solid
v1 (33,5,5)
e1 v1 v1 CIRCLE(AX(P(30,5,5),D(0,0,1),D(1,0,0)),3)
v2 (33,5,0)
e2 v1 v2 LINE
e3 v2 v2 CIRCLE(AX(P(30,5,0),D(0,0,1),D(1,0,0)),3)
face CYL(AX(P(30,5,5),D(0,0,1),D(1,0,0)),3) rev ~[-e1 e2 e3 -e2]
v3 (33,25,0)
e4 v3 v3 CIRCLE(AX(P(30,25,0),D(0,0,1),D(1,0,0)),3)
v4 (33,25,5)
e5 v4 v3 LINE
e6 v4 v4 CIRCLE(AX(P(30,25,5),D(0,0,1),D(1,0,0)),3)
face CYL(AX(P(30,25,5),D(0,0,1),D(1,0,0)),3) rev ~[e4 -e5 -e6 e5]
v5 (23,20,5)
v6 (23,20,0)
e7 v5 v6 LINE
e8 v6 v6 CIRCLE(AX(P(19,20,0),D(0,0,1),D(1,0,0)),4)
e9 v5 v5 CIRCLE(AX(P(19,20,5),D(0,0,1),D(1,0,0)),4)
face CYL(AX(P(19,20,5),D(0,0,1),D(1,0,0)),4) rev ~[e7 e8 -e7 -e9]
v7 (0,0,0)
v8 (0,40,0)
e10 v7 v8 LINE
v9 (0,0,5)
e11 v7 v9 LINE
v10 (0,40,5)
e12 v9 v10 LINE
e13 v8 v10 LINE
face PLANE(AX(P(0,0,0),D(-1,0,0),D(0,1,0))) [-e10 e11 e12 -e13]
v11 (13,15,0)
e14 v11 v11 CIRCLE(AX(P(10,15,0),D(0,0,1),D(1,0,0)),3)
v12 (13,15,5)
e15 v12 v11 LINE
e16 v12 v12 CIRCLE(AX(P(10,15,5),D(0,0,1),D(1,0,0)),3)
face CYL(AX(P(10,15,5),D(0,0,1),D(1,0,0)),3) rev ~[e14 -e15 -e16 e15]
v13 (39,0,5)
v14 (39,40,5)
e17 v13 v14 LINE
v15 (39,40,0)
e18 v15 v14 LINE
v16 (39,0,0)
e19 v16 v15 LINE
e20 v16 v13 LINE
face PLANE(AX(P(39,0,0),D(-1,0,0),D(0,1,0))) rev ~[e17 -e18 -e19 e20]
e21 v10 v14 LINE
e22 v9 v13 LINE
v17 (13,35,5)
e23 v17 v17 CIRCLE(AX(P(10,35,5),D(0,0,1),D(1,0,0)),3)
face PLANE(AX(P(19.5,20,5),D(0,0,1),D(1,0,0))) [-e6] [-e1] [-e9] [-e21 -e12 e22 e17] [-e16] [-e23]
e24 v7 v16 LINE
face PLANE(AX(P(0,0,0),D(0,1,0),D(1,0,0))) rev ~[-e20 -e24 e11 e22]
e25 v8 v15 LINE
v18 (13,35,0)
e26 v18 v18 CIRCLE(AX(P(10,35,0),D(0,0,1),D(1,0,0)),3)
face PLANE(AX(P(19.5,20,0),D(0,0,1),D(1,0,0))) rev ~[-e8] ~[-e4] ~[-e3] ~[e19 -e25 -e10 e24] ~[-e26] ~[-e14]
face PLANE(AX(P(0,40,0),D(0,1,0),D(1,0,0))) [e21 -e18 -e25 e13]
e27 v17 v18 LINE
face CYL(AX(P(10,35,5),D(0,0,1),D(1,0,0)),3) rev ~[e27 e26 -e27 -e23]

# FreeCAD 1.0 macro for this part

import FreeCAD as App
import Part
import Sketcher

V = App.Vector

doc = App.newDocument("Part")
body = doc.addObject("PartDesign::Body", "Body")

# Sketch on XY plane
sketch1 = body.newObject("Sketcher::SketchObject", "Sketch")
sketch1.AttachmentSupport = (doc.getObject("XY_Plane"), [""])
sketch1.MapMode = "FlatFace"
sketch1.addGeometry([
    Part.LineSegment(V(0, 40, 0), V(0, 0, 0)),
    Part.LineSegment(V(0, 0, 0), V(39, 0, 0)),
    Part.LineSegment(V(39, 0, 0), V(39, 40, 0)),
    Part.LineSegment(V(39, 40, 0), V(0, 40, 0)),
], False)
sketch1.addConstraint([
    Sketcher.Constraint("Coincident", 0, 2, 1, 1),
    Sketcher.Constraint("Coincident", 1, 2, 2, 1),
    Sketcher.Constraint("Coincident", 2, 2, 3, 1),
    Sketcher.Constraint("Coincident", 3, 2, 0, 1),
    Sketcher.Constraint("Vertical", 0),
    Sketcher.Constraint("Horizontal", 1),
    Sketcher.Constraint("Vertical", 2),
    Sketcher.Constraint("Horizontal", 3),
    Sketcher.Constraint("Coincident", 0, 2, -1, 1),
    Sketcher.Constraint("DistanceX", 1, 1, 1, 2, 39.0),
    Sketcher.Constraint("DistanceY", 0, 2, 0, 1, 40.0),
])
pad1 = body.newObject("PartDesign::Pad", "Pad")
pad1.Profile = sketch1
pad1.Length = 5

# Sketch on XY plane
sketch2 = body.newObject("Sketcher::SketchObject", "Sketch001")
sketch2.AttachmentSupport = (doc.getObject("XY_Plane"), [""])
sketch2.MapMode = "FlatFace"
sketch2.AttachmentOffset = App.Placement(V(0, 0, 5), App.Rotation())
sketch2.addGeometry([
    Part.Circle(V(10, 35, 0), V(0, 0, 1), 3),  # 0
    Part.Circle(V(30, 25, 0), V(0, 0, 1), 3),  # 1
    Part.Circle(V(10, 15, 0), V(0, 0, 1), 3),  # 2
    Part.Circle(V(30, 5, 0), V(0, 0, 1), 3),  # 3
    Part.Circle(V(19, 20, 0), V(0, 0, 1), 4),  # 4
], False)
sketch2.addConstraint([
    Sketcher.Constraint("Equal", 0, 1),
    Sketcher.Constraint("Equal", 1, 2),
    Sketcher.Constraint("Equal", 2, 3),
    Sketcher.Constraint("Vertical", 0, 3, 2, 3),
    Sketcher.Constraint("Vertical", 1, 3, 3, 3),
    Sketcher.Constraint("Diameter", 0, 6.0),
    Sketcher.Constraint("Diameter", 4, 8.0),
    Sketcher.Constraint("DistanceX", -1, 1, 0, 3, 10.0),
    Sketcher.Constraint("DistanceY", -1, 1, 0, 3, 35.0),
    Sketcher.Constraint("DistanceX", -1, 1, 1, 3, 30.0),
    Sketcher.Constraint("DistanceY", -1, 1, 1, 3, 25.0),
    Sketcher.Constraint("DistanceY", -1, 1, 2, 3, 15.0),
    Sketcher.Constraint("DistanceY", -1, 1, 3, 3, 5.0),
    Sketcher.Constraint("DistanceX", -1, 1, 4, 3, 19.0),
    Sketcher.Constraint("DistanceY", -1, 1, 4, 3, 20.0),
])
pocket1 = body.newObject("PartDesign::Pocket", "Pocket")
pocket1.Profile = sketch2
pocket1.Type = "ThroughAll"

doc.recompute()
